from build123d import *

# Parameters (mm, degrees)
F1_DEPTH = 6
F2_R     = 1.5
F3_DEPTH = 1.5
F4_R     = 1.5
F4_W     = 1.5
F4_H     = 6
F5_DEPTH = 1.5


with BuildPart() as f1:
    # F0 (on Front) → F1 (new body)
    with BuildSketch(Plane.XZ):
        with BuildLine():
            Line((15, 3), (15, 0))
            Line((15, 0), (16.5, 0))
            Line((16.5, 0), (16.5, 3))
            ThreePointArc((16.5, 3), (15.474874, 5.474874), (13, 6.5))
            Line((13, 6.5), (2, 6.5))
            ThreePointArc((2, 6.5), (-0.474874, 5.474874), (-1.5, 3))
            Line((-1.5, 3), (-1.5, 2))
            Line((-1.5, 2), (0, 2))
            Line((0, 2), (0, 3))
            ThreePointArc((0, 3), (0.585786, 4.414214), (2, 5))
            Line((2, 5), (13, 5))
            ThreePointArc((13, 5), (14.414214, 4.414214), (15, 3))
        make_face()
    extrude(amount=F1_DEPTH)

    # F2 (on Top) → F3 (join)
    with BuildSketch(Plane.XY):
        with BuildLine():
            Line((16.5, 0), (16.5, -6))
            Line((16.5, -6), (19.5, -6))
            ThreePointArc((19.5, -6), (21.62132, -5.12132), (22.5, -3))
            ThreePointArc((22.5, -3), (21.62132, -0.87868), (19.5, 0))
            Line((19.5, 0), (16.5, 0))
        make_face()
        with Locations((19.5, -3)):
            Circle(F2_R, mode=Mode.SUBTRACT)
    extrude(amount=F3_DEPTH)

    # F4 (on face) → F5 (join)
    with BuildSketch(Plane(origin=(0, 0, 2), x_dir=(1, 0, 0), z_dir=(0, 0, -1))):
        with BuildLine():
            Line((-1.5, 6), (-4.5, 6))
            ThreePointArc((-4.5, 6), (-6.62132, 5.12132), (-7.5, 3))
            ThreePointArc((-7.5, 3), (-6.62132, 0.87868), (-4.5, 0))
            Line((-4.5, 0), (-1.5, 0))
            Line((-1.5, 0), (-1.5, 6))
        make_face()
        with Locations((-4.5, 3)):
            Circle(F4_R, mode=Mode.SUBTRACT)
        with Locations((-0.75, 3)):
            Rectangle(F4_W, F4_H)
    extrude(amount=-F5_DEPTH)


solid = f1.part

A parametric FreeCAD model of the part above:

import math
import FreeCAD as App
import Part
import Sketcher

V = App.Vector
Q = App.Units.Quantity

doc = App.newDocument("Part")
body = doc.addObject("PartDesign::Body", "Body")

sketch1 = body.newObject("Sketcher::SketchObject", "Sketch")
sketch1.AttachmentSupport = (doc.getObject("XZ_Plane"), [""])
sketch1.MapMode = "FlatFace"
sketch1.addGeometry([
    Part.LineSegment(V(15, 3, 0), V(15, 0, 0)),
    Part.LineSegment(V(15, 0, 0), V(16.5, 0, 0)),
    Part.LineSegment(V(16.5, 0, 0), V(16.5, 3, 0)),
    Part.ArcOfCircle(Part.Circle(V(13.000001, 3.000001, 0), V(0, 0, 1), 3.499999), math.radians(-0.000015), math.radians(90.000015)),
    Part.LineSegment(V(13, 6.5, 0), V(2, 6.5, 0)),
    Part.ArcOfCircle(Part.Circle(V(1.999999, 3.000001, 0), V(0, 0, 1), 3.499999), math.radians(89.999985), math.radians(180.000015)),
    Part.LineSegment(V(-1.5, 3, 0), V(-1.5, 2, 0)),
    Part.LineSegment(V(-1.5, 2, 0), V(0, 2, 0)),
    Part.LineSegment(V(0, 2, 0), V(0, 3, 0)),
    Part.ArcOfCircle(Part.Circle(V(1.999999, 3.000001, 0), V(0, 0, 1), 1.999999), math.radians(89.999957), math.radians(180.000043)),
    Part.LineSegment(V(2, 5, 0), V(13, 5, 0)),
    Part.ArcOfCircle(Part.Circle(V(13.000001, 3.000001, 0), V(0, 0, 1), 1.999999), math.radians(-0.000043), math.radians(90.000043)),
], False)
sketch1.addConstraint([
    Sketcher.Constraint("Coincident", 0, 2, 1, 1),
    Sketcher.Constraint("Coincident", 1, 2, 2, 1),
    Sketcher.Constraint("Tangent", 2, 2, 3, 1),
    Sketcher.Constraint("Tangent", 3, 2, 4, 1),
    Sketcher.Constraint("Tangent", 4, 2, 5, 1),
    Sketcher.Constraint("Tangent", 5, 2, 6, 1),
    Sketcher.Constraint("Coincident", 6, 2, 7, 1),
    Sketcher.Constraint("Coincident", 7, 2, 8, 1),
    Sketcher.Constraint("Tangent", 8, 2, 9, 2),
    Sketcher.Constraint("Tangent", 9, 1, 10, 1),
    Sketcher.Constraint("Tangent", 10, 2, 11, 2),
    Sketcher.Constraint("Tangent", 11, 1, 0, 1),
    Sketcher.Constraint("Vertical", 0),
    Sketcher.Constraint("Horizontal", 1),
    Sketcher.Constraint("Vertical", 2),
    Sketcher.Constraint("Horizontal", 4),
    Sketcher.Constraint("Vertical", 6),
    Sketcher.Constraint("Horizontal", 7),
    Sketcher.Constraint("Vertical", 8),
    Sketcher.Constraint("Horizontal", 10),
    Sketcher.Constraint("Coincident", 9, 3, 5, 3),
    Sketcher.Constraint("Coincident", 11, 3, 3, 3),
    Sketcher.Constraint("Equal", 3, 5),
    Sketcher.Constraint("PointOnObject", 0, 2, -1),
    Sketcher.Constraint("PointOnObject", 7, 2, -2),
    Sketcher.Constraint("Radius", 9, Q("1.999999 mm")),
    Sketcher.Constraint("Radius", 3, Q("3.499999 mm")),
    Sketcher.Constraint("DistanceX", 4, 2, 4, 1, Q("11 mm")),
    Sketcher.Constraint("DistanceY", 0, 2, 0, 1, Q("3 mm")),
    Sketcher.Constraint("DistanceY", 6, 2, 6, 1, Q("1 mm")),
])
pad1 = body.newObject("PartDesign::Pad", "Pad")
pad1.Profile = sketch1
pad1.Length = 6

sketch2 = body.newObject("Sketcher::SketchObject", "Sketch001")
sketch2.AttachmentSupport = (doc.getObject("XY_Plane"), [""])
sketch2.MapMode = "FlatFace"
sketch2.addGeometry([
    Part.LineSegment(V(16.5, 0, 0), V(16.5, -6, 0)),
    Part.LineSegment(V(16.5, -6, 0), V(19.5, -6, 0)),
    Part.ArcOfCircle(Part.Circle(V(19.499999, -2.999999, 0), V(0, 0, 1), 3.000001), math.radians(-89.999978), math.radians(-0.000022)),
    Part.ArcOfCircle(Part.Circle(V(19.499999, -3.000001, 0), V(0, 0, 1), 3.000001), math.radians(0.000022), math.radians(89.999978)),
    Part.LineSegment(V(19.5, 0, 0), V(16.5, 0, 0)),
    Part.Circle(V(19.5, -3, 0), V(0, 0, 1), 1.5),
], False)
sketch2.addConstraint([
    Sketcher.Constraint("Coincident", 0, 2, 1, 1),
    Sketcher.Constraint("Tangent", 1, 2, 2, 1),
    Sketcher.Constraint("Tangent", 2, 2, 3, 1),
    Sketcher.Constraint("Tangent", 3, 2, 4, 1),
    Sketcher.Constraint("Coincident", 4, 2, 0, 1),
    Sketcher.Constraint("Vertical", 0),
    Sketcher.Constraint("Horizontal", 1),
    Sketcher.Constraint("Horizontal", 4),
    Sketcher.Constraint("Coincident", 5, 3, 2, 3),
    Sketcher.Constraint("Equal", 2, 3),
    Sketcher.Constraint("PointOnObject", 3, 2, -1),
    Sketcher.Constraint("Horizontal", 5, 3, 2, 2),
    Sketcher.Constraint("Diameter", 5, Q("3 mm")),
    Sketcher.Constraint("Radius", 2, Q("3.000001 mm")),
    Sketcher.Constraint("DistanceX", 1, 1, 1, 2, Q("3 mm")),
    Sketcher.Constraint("DistanceX", -1, 1, 2, 3, Q("19.499999 mm")),
])
pad2 = body.newObject("PartDesign::Pad", "Pad001")
pad2.Profile = sketch2
pad2.Length = 1.5

sketch3 = body.newObject("Sketcher::SketchObject", "Sketch002")
sketch3.AttachmentSupport = (doc.getObject("XY_Plane"), [""])
sketch3.MapMode = "FlatFace"
sketch3.AttachmentOffset = App.Placement(V(0, 0, 2), App.Rotation())
sketch3.addGeometry([
    Part.ArcOfCircle(Part.Circle(V(-4.499999, -2.999999, 0), V(0, 0, 1), 3.000001), math.radians(-179.999978), math.radians(-90.000022)),
    Part.ArcOfCircle(Part.Circle(V(-4.499999, -3.000001, 0), V(0, 0, 1), 3.000001), math.radians(90.000022), math.radians(179.999978)),
    Part.LineSegment(V(-4.5, 0, 0), V(0, 0, 0)),
    Part.LineSegment(V(0, 0, 0), V(0, -6, 0)),
    Part.LineSegment(V(0, -6, 0), V(-4.5, -6, 0)),
    Part.Circle(V(-4.5, -3, 0), V(0, 0, 1), 1.5),
], False)
sketch3.addConstraint([
    Sketcher.Constraint("Tangent", 0, 1, 1, 2),
    Sketcher.Constraint("Tangent", 1, 1, 2, 1),
    Sketcher.Constraint("Coincident", 2, 2, 3, 1),
    Sketcher.Constraint("Coincident", 3, 2, 4, 1),
    Sketcher.Constraint("Tangent", 4, 2, 0, 2),
    Sketcher.Constraint("Horizontal", 2),
    Sketcher.Constraint("Vertical", 3),
    Sketcher.Constraint("Horizontal", 4),
    Sketcher.Constraint("Coincident", 2, 2, -1, 1),
    Sketcher.Constraint("Coincident", 5, 3, 0, 3),
    Sketcher.Constraint("Equal", 0, 1),
    Sketcher.Constraint("Horizontal", 5, 3, 0, 1),
    Sketcher.Constraint("Diameter", 5, Q("3 mm")),
    Sketcher.Constraint("Radius", 0, Q("3.000001 mm")),
    Sketcher.Constraint("DistanceX", 2, 1, 2, 2, Q("4.5 mm")),
])
pad3 = body.newObject("PartDesign::Pad", "Pad002")
pad3.Profile = sketch3
pad3.Length = 1.5

doc.recompute()
